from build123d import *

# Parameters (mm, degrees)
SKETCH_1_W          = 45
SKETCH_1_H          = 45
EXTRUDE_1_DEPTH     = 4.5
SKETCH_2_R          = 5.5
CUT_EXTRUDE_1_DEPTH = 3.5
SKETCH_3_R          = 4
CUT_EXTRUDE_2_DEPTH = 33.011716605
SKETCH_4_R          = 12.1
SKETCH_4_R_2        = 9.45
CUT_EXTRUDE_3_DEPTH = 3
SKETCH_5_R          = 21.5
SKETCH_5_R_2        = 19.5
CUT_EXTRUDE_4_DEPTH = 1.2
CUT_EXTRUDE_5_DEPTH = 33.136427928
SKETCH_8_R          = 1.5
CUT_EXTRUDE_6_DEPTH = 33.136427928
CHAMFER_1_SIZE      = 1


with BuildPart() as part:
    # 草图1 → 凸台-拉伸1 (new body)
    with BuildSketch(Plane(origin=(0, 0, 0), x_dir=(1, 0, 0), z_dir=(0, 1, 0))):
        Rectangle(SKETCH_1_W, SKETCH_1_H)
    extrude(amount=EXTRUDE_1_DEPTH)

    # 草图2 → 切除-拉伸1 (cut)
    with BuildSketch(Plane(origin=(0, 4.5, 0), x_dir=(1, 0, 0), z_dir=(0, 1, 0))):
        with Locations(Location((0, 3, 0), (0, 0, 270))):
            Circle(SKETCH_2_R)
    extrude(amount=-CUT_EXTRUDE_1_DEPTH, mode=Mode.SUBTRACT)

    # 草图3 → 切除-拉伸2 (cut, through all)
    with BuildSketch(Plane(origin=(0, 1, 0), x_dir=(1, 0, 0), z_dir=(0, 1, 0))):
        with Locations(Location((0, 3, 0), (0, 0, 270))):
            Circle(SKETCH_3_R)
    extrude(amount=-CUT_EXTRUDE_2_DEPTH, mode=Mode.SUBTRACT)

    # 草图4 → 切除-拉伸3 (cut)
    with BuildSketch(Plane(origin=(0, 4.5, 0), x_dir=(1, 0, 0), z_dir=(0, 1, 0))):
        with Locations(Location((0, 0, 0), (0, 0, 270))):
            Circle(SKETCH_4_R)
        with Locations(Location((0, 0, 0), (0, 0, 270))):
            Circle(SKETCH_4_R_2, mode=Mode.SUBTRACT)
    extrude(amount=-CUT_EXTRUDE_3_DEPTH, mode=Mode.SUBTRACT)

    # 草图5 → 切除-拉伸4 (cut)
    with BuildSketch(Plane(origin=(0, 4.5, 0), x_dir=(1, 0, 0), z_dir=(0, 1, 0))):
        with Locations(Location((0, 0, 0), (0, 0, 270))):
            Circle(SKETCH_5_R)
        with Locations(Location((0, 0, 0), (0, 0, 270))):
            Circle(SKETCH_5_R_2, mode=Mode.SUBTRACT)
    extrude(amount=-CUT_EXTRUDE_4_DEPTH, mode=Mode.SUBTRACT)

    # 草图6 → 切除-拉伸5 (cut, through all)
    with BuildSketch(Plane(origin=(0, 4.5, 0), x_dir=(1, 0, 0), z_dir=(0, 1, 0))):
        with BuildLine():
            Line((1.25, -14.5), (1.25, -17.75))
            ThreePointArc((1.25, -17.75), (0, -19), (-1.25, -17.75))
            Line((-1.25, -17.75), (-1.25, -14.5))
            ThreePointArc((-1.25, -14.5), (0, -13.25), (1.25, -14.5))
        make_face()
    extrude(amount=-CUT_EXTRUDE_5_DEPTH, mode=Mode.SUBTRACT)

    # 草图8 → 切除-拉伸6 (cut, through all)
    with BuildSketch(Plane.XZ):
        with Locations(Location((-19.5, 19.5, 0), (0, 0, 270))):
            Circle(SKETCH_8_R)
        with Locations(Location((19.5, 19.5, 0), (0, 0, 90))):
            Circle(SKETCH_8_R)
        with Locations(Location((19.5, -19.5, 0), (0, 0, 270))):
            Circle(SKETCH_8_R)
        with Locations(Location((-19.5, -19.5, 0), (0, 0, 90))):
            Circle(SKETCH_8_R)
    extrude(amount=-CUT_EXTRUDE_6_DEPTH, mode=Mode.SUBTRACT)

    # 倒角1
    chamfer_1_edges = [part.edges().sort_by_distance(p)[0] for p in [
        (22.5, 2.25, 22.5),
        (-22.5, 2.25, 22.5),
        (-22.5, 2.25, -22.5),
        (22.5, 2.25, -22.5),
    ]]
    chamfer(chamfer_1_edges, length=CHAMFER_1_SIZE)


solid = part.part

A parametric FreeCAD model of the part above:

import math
import FreeCAD as App
import Part
import Sketcher
from FreeCAD import Vector
Q = App.Units.Quantity


def edges_at(feature, points):
    """Names of the edges that pass closest to the given points."""
    edges = feature.Shape.Edges
    near = lambda p: min(range(len(edges)), key=lambda i: edges[i].distToShape(Part.Vertex(*p))[0])
    return sorted({f"Edge{near(p) + 1}" for p in points})

doc = App.newDocument("Part")
body = doc.addObject("PartDesign::Body", "Body")

# Sketch on XZ plane
sketch1 = body.newObject("Sketcher::SketchObject", "Sketch")
sketch1.AttachmentSupport = (doc.getObject("XZ_Plane"), [""])
sketch1.MapMode = "FlatFace"
sketch1.addGeometry([
    Part.LineSegment(Vector(-22.5, -22.5, 0), Vector(-22.5, 22.5, 0)),
    Part.LineSegment(Vector(-22.5, 22.5, 0), Vector(22.5, 22.5, 0)),
    Part.LineSegment(Vector(22.5, 22.5, 0), Vector(22.5, -22.5, 0)),
    Part.LineSegment(Vector(22.5, -22.5, 0), Vector(-22.5, -22.5, 0)),
], False)
sketch1.addConstraint([
    Sketcher.Constraint("Coincident", 0, 2, 1, 1),
    Sketcher.Constraint("Coincident", 1, 2, 2, 1),
    Sketcher.Constraint("Coincident", 2, 2, 3, 1),
    Sketcher.Constraint("Coincident", 3, 2, 0, 1),
    Sketcher.Constraint("Vertical", 0),
    Sketcher.Constraint("Horizontal", 1),
    Sketcher.Constraint("Vertical", 2),
    Sketcher.Constraint("Horizontal", 3),
    Sketcher.Constraint("Symmetric", 0, 2, 2, 2, -1, 1),
    Sketcher.Constraint("Equal", 3, 0),
    Sketcher.Constraint("DistanceX", 1, 1, 1, 2, Q("45 mm")),
])
pad1 = body.newObject("PartDesign::Pad", "Pad")
pad1.Profile = sketch1
pad1.Length = 4.5
pad1.Reversed = True

# Sketch on XZ plane
sketch2 = body.newObject("Sketcher::SketchObject", "Sketch001")
sketch2.AttachmentSupport = (doc.getObject("XZ_Plane"), [""])
sketch2.MapMode = "FlatFace"
sketch2.AttachmentOffset = App.Placement(Vector(0, 0, -4.5), App.Rotation())
sketch2.addGeometry(Part.Circle(Vector(0, -3, 0), Vector(0, 0, 1), 5.5), False)
sketch2.addConstraint([
    Sketcher.Constraint("PointOnObject", 0, 3, -2),
    Sketcher.Constraint("Diameter", 0, Q("11 mm")),
    Sketcher.Constraint("DistanceY", 0, 3, -1, 1, Q("3 mm")),
])
pocket1 = body.newObject("PartDesign::Pocket", "Pocket")
pocket1.Profile = sketch2
pocket1.Length = 3.5
pocket1.Reversed = True

# Sketch on XZ plane
sketch3 = body.newObject("Sketcher::SketchObject", "Sketch002")
sketch3.AttachmentSupport = (doc.getObject("XZ_Plane"), [""])
sketch3.MapMode = "FlatFace"
sketch3.AttachmentOffset = App.Placement(Vector(0, 0, -1), App.Rotation())
sketch3.addGeometry(Part.Circle(Vector(0, -3, 0), Vector(0, 0, 1), 4), False)
sketch3.addConstraint([
    Sketcher.Constraint("PointOnObject", 0, 3, -2),
    Sketcher.Constraint("Diameter", 0, Q("8 mm")),
    Sketcher.Constraint("DistanceY", 0, 3, -1, 1, Q("3 mm")),
])
pocket2 = body.newObject("PartDesign::Pocket", "Pocket001")
pocket2.Profile = sketch3
pocket2.Type = "ThroughAll"
pocket2.Reversed = True

# Sketch on XZ plane
sketch4 = body.newObject("Sketcher::SketchObject", "Sketch003")
sketch4.AttachmentSupport = (doc.getObject("XZ_Plane"), [""])
sketch4.MapMode = "FlatFace"
sketch4.AttachmentOffset = App.Placement(Vector(0, 0, -4.5), App.Rotation())
sketch4.addGeometry([
    Part.Circle(Vector(0, 0, 0), Vector(0, 0, 1), 12.1),
    Part.Circle(Vector(0, 0, 0), Vector(0, 0, 1), 9.45),
], False)
sketch4.addConstraint([
    Sketcher.Constraint("Coincident", 0, 3, -1, 1),
    Sketcher.Constraint("Coincident", 1, 3, -1, 1),
    Sketcher.Constraint("Diameter", 0, Q("24.2 mm")),
    Sketcher.Constraint("Diameter", 1, Q("18.9 mm")),
])
pocket3 = body.newObject("PartDesign::Pocket", "Pocket002")
pocket3.Profile = sketch4
pocket3.Length = 3
pocket3.Reversed = True

# Sketch on XZ plane
sketch5 = body.newObject("Sketcher::SketchObject", "Sketch004")
sketch5.AttachmentSupport = (doc.getObject("XZ_Plane"), [""])
sketch5.MapMode = "FlatFace"
sketch5.AttachmentOffset = App.Placement(Vector(0, 0, -4.5), App.Rotation())
sketch5.addGeometry([
    Part.Circle(Vector(0, 0, 0), Vector(0, 0, 1), 21.5),
    Part.Circle(Vector(0, 0, 0), Vector(0, 0, 1), 19.5),
], False)
sketch5.addConstraint([
    Sketcher.Constraint("Coincident", 0, 3, -1, 1),
    Sketcher.Constraint("Coincident", 1, 3, -1, 1),
    Sketcher.Constraint("Diameter", 0, Q("43 mm")),
    Sketcher.Constraint("Diameter", 1, Q("39 mm")),
])
pocket4 = body.newObject("PartDesign::Pocket", "Pocket003")
pocket4.Profile = sketch5
pocket4.Length = 1.2
pocket4.Reversed = True

# Sketch on XZ plane
sketch6 = body.newObject("Sketcher::SketchObject", "Sketch005")
sketch6.AttachmentSupport = (doc.getObject("XZ_Plane"), [""])
sketch6.MapMode = "FlatFace"
sketch6.AttachmentOffset = App.Placement(Vector(0, 0, -4.5), App.Rotation())
sketch6.addGeometry([
    Part.LineSegment(Vector(1.25, 17.75, 0), Vector(1.25, 14.5, 0)),
    Part.ArcOfCircle(Part.Circle(Vector(0, 14.5, 0), Vector(0, 0, 1), 1.25), math.radians(180), math.radians(360)),
    Part.LineSegment(Vector(-1.25, 14.5, 0), Vector(-1.25, 17.75, 0)),
    Part.ArcOfCircle(Part.Circle(Vector(0, 17.75, 0), Vector(0, 0, 1), 1.25), math.radians(0), math.radians(180)),
], False)
sketch6.addConstraint([
    Sketcher.Constraint("Tangent", 0, 2, 1, 2),
    Sketcher.Constraint("Tangent", 1, 1, 2, 1),
    Sketcher.Constraint("Tangent", 2, 2, 3, 2),
    Sketcher.Constraint("Tangent", 3, 1, 0, 1),
    Sketcher.Constraint("Vertical", 0),
    Sketcher.Constraint("Vertical", 2),
    Sketcher.Constraint("PointOnObject", 1, 3, -2),
    Sketcher.Constraint("Radius", 1, Q("1.25 mm")),
    Sketcher.Constraint("DistanceY", 0, 2, 0, 1, Q("3.25 mm")),
    Sketcher.Constraint("DistanceY", -1, 1, 1, 3, Q("14.5 mm")),
])
pocket5 = body.newObject("PartDesign::Pocket", "Pocket004")
pocket5.Profile = sketch6
pocket5.Type = "ThroughAll"
pocket5.Reversed = True

# Sketch on XZ plane
sketch7 = body.newObject("Sketcher::SketchObject", "Sketch006")
sketch7.AttachmentSupport = (doc.getObject("XZ_Plane"), [""])
sketch7.MapMode = "FlatFace"
sketch7.addGeometry([
    Part.Circle(Vector(-19.5, 19.5, 0), Vector(0, 0, 1), 1.5),
    Part.Circle(Vector(19.5, 19.5, 0), Vector(0, 0, 1), 1.5),
    Part.Circle(Vector(19.5, -19.5, 0), Vector(0, 0, 1), 1.5),
    Part.Circle(Vector(-19.5, -19.5, 0), Vector(0, 0, 1), 1.5),
], False)
sketch7.addConstraint([
    Sketcher.Constraint("Equal", 0, 1),
    Sketcher.Constraint("Equal", 1, 2),
    Sketcher.Constraint("Equal", 2, 3),
    Sketcher.Constraint("Symmetric", 0, 3, 2, 3, -1, 1),
    Sketcher.Constraint("Symmetric", 1, 3, 3, 3, -1, 1),
    Sketcher.Constraint("Symmetric", 0, 3, 1, 3, -2),
    Sketcher.Constraint("Diameter", 0, Q("3 mm")),
    Sketcher.Constraint("DistanceX", 0, 3, 1, 3, Q("39 mm")),
    Sketcher.Constraint("DistanceY", 2, 3, 1, 3, Q("39 mm")),
])
pocket6 = body.newObject("PartDesign::Pocket", "Pocket005")
pocket6.Profile = sketch7
pocket6.Type = "ThroughAll"
doc.recompute()

chamfer = body.newObject("PartDesign::Chamfer", "Chamfer")
chamfer.Base = (pocket6, edges_at(pocket6, [
    (22.5, 2.25, 22.5),
    (-22.5, 2.25, 22.5),
    (-22.5, 2.25, -22.5),
    (22.5, 2.25, -22.5),
]))
chamfer.Size = 1

doc.recompute()
